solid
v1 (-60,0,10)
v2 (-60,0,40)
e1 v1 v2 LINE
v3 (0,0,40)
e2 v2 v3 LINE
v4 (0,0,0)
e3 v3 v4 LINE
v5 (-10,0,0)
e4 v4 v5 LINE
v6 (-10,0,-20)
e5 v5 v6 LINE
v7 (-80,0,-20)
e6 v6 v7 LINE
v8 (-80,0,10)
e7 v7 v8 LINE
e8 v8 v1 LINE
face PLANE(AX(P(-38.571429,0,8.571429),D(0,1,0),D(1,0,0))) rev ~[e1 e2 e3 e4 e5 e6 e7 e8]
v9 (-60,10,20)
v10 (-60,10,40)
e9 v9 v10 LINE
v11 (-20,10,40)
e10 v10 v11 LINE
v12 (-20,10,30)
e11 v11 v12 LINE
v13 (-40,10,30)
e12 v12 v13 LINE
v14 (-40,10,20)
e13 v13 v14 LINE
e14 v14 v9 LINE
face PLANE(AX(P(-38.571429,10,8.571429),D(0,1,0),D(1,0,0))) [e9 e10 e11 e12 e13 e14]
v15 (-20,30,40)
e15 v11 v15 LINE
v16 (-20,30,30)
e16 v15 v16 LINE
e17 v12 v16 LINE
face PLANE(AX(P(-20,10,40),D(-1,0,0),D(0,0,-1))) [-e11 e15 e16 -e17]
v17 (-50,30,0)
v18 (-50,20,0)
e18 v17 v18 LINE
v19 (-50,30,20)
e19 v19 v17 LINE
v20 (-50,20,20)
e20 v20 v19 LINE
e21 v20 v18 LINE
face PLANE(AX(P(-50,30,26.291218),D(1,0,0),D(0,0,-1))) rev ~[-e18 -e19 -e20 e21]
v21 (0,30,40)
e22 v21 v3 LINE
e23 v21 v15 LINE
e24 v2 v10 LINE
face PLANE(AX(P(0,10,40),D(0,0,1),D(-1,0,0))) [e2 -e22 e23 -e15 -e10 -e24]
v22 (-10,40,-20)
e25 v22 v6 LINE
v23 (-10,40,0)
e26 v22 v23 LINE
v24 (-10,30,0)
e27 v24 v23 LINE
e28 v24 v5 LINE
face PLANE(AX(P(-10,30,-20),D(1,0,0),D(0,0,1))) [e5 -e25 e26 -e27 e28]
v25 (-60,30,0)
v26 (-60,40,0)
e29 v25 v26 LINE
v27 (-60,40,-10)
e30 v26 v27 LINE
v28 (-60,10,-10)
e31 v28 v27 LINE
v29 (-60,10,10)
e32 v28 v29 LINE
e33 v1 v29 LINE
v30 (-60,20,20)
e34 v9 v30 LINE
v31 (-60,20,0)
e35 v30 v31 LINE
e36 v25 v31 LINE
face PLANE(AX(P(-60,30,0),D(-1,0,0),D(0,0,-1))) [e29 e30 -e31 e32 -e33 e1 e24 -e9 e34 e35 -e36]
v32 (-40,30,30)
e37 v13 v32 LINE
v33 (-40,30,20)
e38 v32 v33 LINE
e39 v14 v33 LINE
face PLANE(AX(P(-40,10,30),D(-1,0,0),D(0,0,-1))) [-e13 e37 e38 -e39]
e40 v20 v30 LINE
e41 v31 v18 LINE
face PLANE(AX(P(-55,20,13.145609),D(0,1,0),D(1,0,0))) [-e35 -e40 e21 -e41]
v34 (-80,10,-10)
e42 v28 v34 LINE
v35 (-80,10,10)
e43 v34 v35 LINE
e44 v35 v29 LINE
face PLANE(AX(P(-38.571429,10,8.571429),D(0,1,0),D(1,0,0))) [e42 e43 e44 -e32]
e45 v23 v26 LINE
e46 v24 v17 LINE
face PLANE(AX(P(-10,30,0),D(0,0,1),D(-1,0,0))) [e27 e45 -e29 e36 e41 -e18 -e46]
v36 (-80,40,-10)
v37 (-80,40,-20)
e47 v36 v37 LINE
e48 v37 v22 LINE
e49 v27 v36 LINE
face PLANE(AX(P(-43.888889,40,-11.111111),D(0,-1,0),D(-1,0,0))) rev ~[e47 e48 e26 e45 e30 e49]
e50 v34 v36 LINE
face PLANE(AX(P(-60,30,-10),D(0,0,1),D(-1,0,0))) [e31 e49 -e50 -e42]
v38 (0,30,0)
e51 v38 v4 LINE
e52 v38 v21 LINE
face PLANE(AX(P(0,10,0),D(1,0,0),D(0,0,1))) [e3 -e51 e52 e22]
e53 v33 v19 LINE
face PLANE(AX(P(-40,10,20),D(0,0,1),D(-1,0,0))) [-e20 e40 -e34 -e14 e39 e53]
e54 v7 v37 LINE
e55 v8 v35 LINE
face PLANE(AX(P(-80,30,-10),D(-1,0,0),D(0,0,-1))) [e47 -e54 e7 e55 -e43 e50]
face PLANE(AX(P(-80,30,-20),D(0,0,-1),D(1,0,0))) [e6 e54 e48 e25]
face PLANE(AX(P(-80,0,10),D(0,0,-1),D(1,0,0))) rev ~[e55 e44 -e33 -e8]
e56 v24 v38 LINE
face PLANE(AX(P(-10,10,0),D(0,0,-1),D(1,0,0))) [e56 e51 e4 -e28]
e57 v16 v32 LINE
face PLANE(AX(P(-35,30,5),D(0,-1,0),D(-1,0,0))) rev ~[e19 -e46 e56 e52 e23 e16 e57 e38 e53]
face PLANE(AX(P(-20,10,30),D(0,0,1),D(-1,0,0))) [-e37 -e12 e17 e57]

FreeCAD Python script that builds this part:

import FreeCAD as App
import Part
import Sketcher
from FreeCAD import Vector
Q = App.Units.Quantity

doc = App.newDocument("Part")
body = doc.addObject("PartDesign::Body", "Body")

# Sketch on XZ plane
sketch1 = doc.addObject("Sketcher::SketchObject", "Sketch")
body.addObject(sketch1)
sketch1.AttachmentSupport = (doc.XZ_Plane, [""])
sketch1.MapMode = "FlatFace"
sketch1.addGeometry([
    Part.LineSegment(Vector(0, 0, 0), Vector(-10, 0, 0)),  # 0
    Part.LineSegment(Vector(-10, 0, 0), Vector(-10, -20, 0)),  # 1
    Part.LineSegment(Vector(-10, -20, 0), Vector(-80, -20, 0)),  # 2
    Part.LineSegment(Vector(-80, -20, 0), Vector(-80, 10, 0)),  # 3
    Part.LineSegment(Vector(-80, 10, 0), Vector(-60, 10, 0)),  # 4
    Part.LineSegment(Vector(-60, 10, 0), Vector(-60, 40, 0)),  # 5
    Part.LineSegment(Vector(-60, 40, 0), Vector(0, 40, 0)),  # 6
    Part.LineSegment(Vector(0, 40, 0), Vector(0, 0, 0)),  # 7
], False)
sketch1.addConstraint([
    Sketcher.Constraint("Coincident", 0, 2, 1, 1),
    Sketcher.Constraint("Coincident", 1, 2, 2, 1),
    Sketcher.Constraint("Coincident", 2, 2, 3, 1),
    Sketcher.Constraint("Coincident", 3, 2, 4, 1),
    Sketcher.Constraint("Coincident", 4, 2, 5, 1),
    Sketcher.Constraint("Coincident", 5, 2, 6, 1),
    Sketcher.Constraint("Coincident", 6, 2, 7, 1),
    Sketcher.Constraint("Coincident", 7, 2, 0, 1),
    Sketcher.Constraint("Horizontal", 0),
    Sketcher.Constraint("Vertical", 1),
    Sketcher.Constraint("Horizontal", 2),
    Sketcher.Constraint("Vertical", 3),
    Sketcher.Constraint("Horizontal", 4),
    Sketcher.Constraint("Vertical", 5),
    Sketcher.Constraint("Horizontal", 6),
    Sketcher.Constraint("Vertical", 7),
    Sketcher.Constraint("Coincident", 7, 2, -1, 1),
    Sketcher.Constraint("Equal", 4, 1),
    Sketcher.Constraint("Equal", 3, 5),
    Sketcher.Constraint("DistanceX", 0, 2, 0, 1, Q("10 mm")),
    Sketcher.Constraint("DistanceX", 2, 2, 2, 1, Q("70 mm")),
    Sketcher.Constraint("DistanceX", 4, 1, 4, 2, Q("20 mm")),
    Sketcher.Constraint("DistanceY", 3, 1, 3, 2, Q("30 mm")),
])
pad1 = doc.addObject("PartDesign::Pad", "Pad")
body.addObject(pad1)
pad1.Profile = sketch1
pad1.Length = 10
pad1.Reversed = True

# Sketch on XZ plane
sketch2 = doc.addObject("Sketcher::SketchObject", "Sketch001")
body.addObject(sketch2)
sketch2.AttachmentSupport = (doc.XZ_Plane, [""])
sketch2.MapMode = "FlatFace"
sketch2.AttachmentOffset = App.Placement(Vector(0, 0, -10), App.Rotation())
sketch2.addGeometry([
    Part.LineSegment(Vector(-10, 0, 0), Vector(-10, -20, 0)),  # 0
    Part.LineSegment(Vector(-10, -20, 0), Vector(-80, -20, 0)),  # 1
    Part.LineSegment(Vector(-80, -20, 0), Vector(-80, -10, 0)),  # 2
    Part.LineSegment(Vector(-80, -10, 0), Vector(-60, -10, 0)),  # 3
    Part.LineSegment(Vector(-60, -10, 0), Vector(-60, 20, 0)),  # 4
    Part.LineSegment(Vector(-60, 20, 0), Vector(-40, 20, 0)),  # 5
    Part.LineSegment(Vector(-40, 20, 0), Vector(-40, 30, 0)),  # 6
    Part.LineSegment(Vector(-40, 30, 0), Vector(-20, 30, 0)),  # 7
    Part.LineSegment(Vector(-20, 30, 0), Vector(-20, 40, 0)),  # 8
    Part.LineSegment(Vector(-20, 40, 0), Vector(0, 40, 0)),  # 9
    Part.LineSegment(Vector(0, 40, 0), Vector(0, 0, 0)),  # 10
    Part.LineSegment(Vector(0, 0, 0), Vector(-10, 0, 0)),  # 11
], False)
sketch2.addConstraint([
    Sketcher.Constraint("Coincident", 0, 2, 1, 1),
    Sketcher.Constraint("Coincident", 1, 2, 2, 1),
    Sketcher.Constraint("Coincident", 2, 2, 3, 1),
    Sketcher.Constraint("Coincident", 3, 2, 4, 1),
    Sketcher.Constraint("Coincident", 4, 2, 5, 1),
    Sketcher.Constraint("Coincident", 5, 2, 6, 1),
    Sketcher.Constraint("Coincident", 6, 2, 7, 1),
    Sketcher.Constraint("Coincident", 7, 2, 8, 1),
    Sketcher.Constraint("Coincident", 8, 2, 9, 1),
    Sketcher.Constraint("Coincident", 9, 2, 10, 1),
    Sketcher.Constraint("Coincident", 10, 2, 11, 1),
    Sketcher.Constraint("Coincident", 11, 2, 0, 1),
    Sketcher.Constraint("Vertical", 0),
    Sketcher.Constraint("Horizontal", 1),
    Sketcher.Constraint("Vertical", 2),
    Sketcher.Constraint("Horizontal", 3),
    Sketcher.Constraint("Vertical", 4),
    Sketcher.Constraint("Horizontal", 5),
    Sketcher.Constraint("Vertical", 6),
    Sketcher.Constraint("Horizontal", 7),
    Sketcher.Constraint("Vertical", 8),
    Sketcher.Constraint("Horizontal", 9),
    Sketcher.Constraint("Vertical", 10),
    Sketcher.Constraint("Horizontal", 11),
    Sketcher.Constraint("Coincident", 10, 2, -1, 1),
    Sketcher.Constraint("Equal", 3, 5),
    Sketcher.Constraint("Equal", 5, 7),
    Sketcher.Constraint("Equal", 7, 9),
    Sketcher.Constraint("Equal", 9, 0),
    Sketcher.Constraint("Equal", 11, 2),
    Sketcher.Constraint("Equal", 2, 6),
    Sketcher.Constraint("Equal", 6, 8),
    Sketcher.Constraint("DistanceX", 1, 2, 1, 1, Q("70 mm")),
    Sketcher.Constraint("DistanceX", 3, 1, 3, 2, Q("20 mm")),
    Sketcher.Constraint("DistanceY", 4, 1, 4, 2, Q("30 mm")),
])
pad2 = doc.addObject("PartDesign::Pad", "Pad001")
body.addObject(pad2)
pad2.Profile = sketch2
pad2.Length = 20
pad2.Reversed = True

# Sketch on XZ plane
sketch3 = doc.addObject("Sketcher::SketchObject", "Sketch002")
body.addObject(sketch3)
sketch3.AttachmentSupport = (doc.XZ_Plane, [""])
sketch3.MapMode = "FlatFace"
sketch3.AttachmentOffset = App.Placement(Vector(0, 0, -30), App.Rotation())
sketch3.addGeometry([
    Part.LineSegment(Vector(-10, -20, 0), Vector(-80, -20, 0)),  # 0
    Part.LineSegment(Vector(-80, -20, 0), Vector(-80, -10, 0)),  # 1
    Part.LineSegment(Vector(-80, -10, 0), Vector(-60, -10, 0)),  # 2
    Part.LineSegment(Vector(-60, -10, 0), Vector(-60, 0, 0)),  # 3
    Part.LineSegment(Vector(-60, 0, 0), Vector(-10, 0, 0)),  # 4
    Part.LineSegment(Vector(-10, 0, 0), Vector(-10, -20, 0)),  # 5
], False)
sketch3.addConstraint([
    Sketcher.Constraint("Coincident", 0, 2, 1, 1),
    Sketcher.Constraint("Coincident", 1, 2, 2, 1),
    Sketcher.Constraint("Coincident", 2, 2, 3, 1),
    Sketcher.Constraint("Coincident", 3, 2, 4, 1),
    Sketcher.Constraint("Coincident", 4, 2, 5, 1),
    Sketcher.Constraint("Coincident", 5, 2, 0, 1),
    Sketcher.Constraint("Horizontal", 0),
    Sketcher.Constraint("Vertical", 1),
    Sketcher.Constraint("Horizontal", 2),
    Sketcher.Constraint("Vertical", 3),
    Sketcher.Constraint("Horizontal", 4),
    Sketcher.Constraint("Vertical", 5),
    Sketcher.Constraint("PointOnObject", 3, 2, -1),
    Sketcher.Constraint("Equal", 1, 3),
    Sketcher.Constraint("Equal", 2, 5),
    Sketcher.Constraint("DistanceX", 0, 2, 0, 1, Q("70 mm")),
    Sketcher.Constraint("DistanceX", 2, 1, 2, 2, Q("20 mm")),
    Sketcher.Constraint("DistanceX", 0, 2, -1, 1, Q("80 mm")),
])
pad3 = doc.addObject("PartDesign::Pad", "Pad002")
body.addObject(pad3)
pad3.Profile = sketch3
pad3.Length = 10
pad3.Reversed = True

# Sketch on XZ plane
sketch4 = doc.addObject("Sketcher::SketchObject", "Sketch003")
body.addObject(sketch4)
sketch4.AttachmentSupport = (doc.XZ_Plane, [""])
sketch4.MapMode = "FlatFace"
sketch4.AttachmentOffset = App.Placement(Vector(0, 0, -30), App.Rotation())
sketch4.addGeometry([
    Part.LineSegment(Vector(-60, 0, 0), Vector(-60, 26.291218, 0)),
    Part.LineSegment(Vector(-60, 26.291218, 0), Vector(-50, 26.291218, 0)),
    Part.LineSegment(Vector(-50, 26.291218, 0), Vector(-50, 0, 0)),
    Part.LineSegment(Vector(-50, 0, 0), Vector(-60, 0, 0)),
], False)
sketch4.addConstraint([
    Sketcher.Constraint("Coincident", 0, 2, 1, 1),
    Sketcher.Constraint("Coincident", 1, 2, 2, 1),
    Sketcher.Constraint("Coincident", 2, 2, 3, 1),
    Sketcher.Constraint("Coincident", 3, 2, 0, 1),
    Sketcher.Constraint("Vertical", 0),
    Sketcher.Constraint("Horizontal", 1),
    Sketcher.Constraint("Vertical", 2),
    Sketcher.Constraint("Horizontal", 3),
    Sketcher.Constraint("PointOnObject", 2, 2, -1),
    Sketcher.Constraint("DistanceX", 1, 1, 1, 2, Q("10 mm")),
    Sketcher.Constraint("DistanceX", 0, 2, -1, 1, Q("60 mm")),
    Sketcher.Constraint("DistanceY", 0, 1, 0, 2, Q("26.291218 mm")),
])
pocket1 = doc.addObject("PartDesign::Pocket", "Pocket")
body.addObject(pocket1)
pocket1.Profile = sketch4
pocket1.Length = 10
pocket1.Reversed = True

doc.recompute()
